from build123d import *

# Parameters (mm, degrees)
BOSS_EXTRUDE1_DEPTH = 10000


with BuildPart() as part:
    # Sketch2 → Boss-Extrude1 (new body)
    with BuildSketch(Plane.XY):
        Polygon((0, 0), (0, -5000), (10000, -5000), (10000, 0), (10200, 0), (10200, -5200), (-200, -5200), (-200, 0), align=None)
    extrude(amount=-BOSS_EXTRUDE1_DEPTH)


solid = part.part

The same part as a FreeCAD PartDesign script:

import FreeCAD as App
import Part
import Sketcher


def add_polygon(sketch, points):
    """Adds a closed chain of lines whose ends are joined by coincident constraints."""
    first, n = sketch.GeometryCount, len(points)
    for a, b in zip(points, points[1:] + points[:1]):
        sketch.addGeometry(Part.LineSegment(App.Vector(*a, 0), App.Vector(*b, 0)), False)
    for i in range(n):
        sketch.addConstraint(Sketcher.Constraint("Coincident", first + i, 2, first + (i + 1) % n, 1))

doc = App.newDocument("Part")
params = doc.addObject("Spreadsheet::Sheet", "Params")
for row, (alias, value) in enumerate([
    ("sketch1_width", "200 mm"),
    ("sketch1_width2", "10400 mm"),
    ("sketch1_height", "5000 mm"),
    ("sketch1_height2", "5200 mm"),
    ("pad1_length", "10000 mm"),
], start=1):
    params.set(f"A{row}", alias)
    params.set(f"B{row}", "=" + value)
    params.setAlias(f"B{row}", alias)

body = doc.addObject("PartDesign::Body", "Body")

# Sketch on XY plane
sketch1 = body.newObject("Sketcher::SketchObject", "Sketch")
sketch1.AttachmentSupport = (doc.getObject("XY_Plane"), [""])
sketch1.MapMode = "FlatFace"
add_polygon(sketch1, [(0, -5000), (0, 0), (-200, 0), (-200, -5200), (10200, -5200), (10200, 0), (10000, 0), (10000, -5000)])  # lines 0-7
sketch1.addConstraint([
    Sketcher.Constraint("Vertical", 0),
    Sketcher.Constraint("Horizontal", 1),
    Sketcher.Constraint("Vertical", 2),
    Sketcher.Constraint("Horizontal", 3),
    Sketcher.Constraint("Vertical", 4),
    Sketcher.Constraint("Horizontal", 5),
    Sketcher.Constraint("Vertical", 6),
    Sketcher.Constraint("Horizontal", 7),
    Sketcher.Constraint("Coincident", 0, 2, -1, 1),
    Sketcher.Constraint("PointOnObject", 4, 2, -1),
    Sketcher.Constraint("Equal", 1, 5),
    Sketcher.Constraint("DistanceX", 1, 2, 1, 1, 200.0),
    Sketcher.Constraint("DistanceX", 3, 1, 3, 2, 10400.0),
    Sketcher.Constraint("DistanceY", 0, 1, 0, 2, 5000.0),
    Sketcher.Constraint("DistanceY", 2, 2, 2, 1, 5200.0),
])
sketch1.setExpression("Constraints[19]", "Params.sketch1_width")
sketch1.setExpression("Constraints[20]", "Params.sketch1_width2")
sketch1.setExpression("Constraints[21]", "Params.sketch1_height")
sketch1.setExpression("Constraints[22]", "Params.sketch1_height2")
pad1 = body.newObject("PartDesign::Pad", "Pad")
pad1.Profile = sketch1
pad1.setExpression("Length", "Params.pad1_length")
pad1.Reversed = True

doc.recompute()
